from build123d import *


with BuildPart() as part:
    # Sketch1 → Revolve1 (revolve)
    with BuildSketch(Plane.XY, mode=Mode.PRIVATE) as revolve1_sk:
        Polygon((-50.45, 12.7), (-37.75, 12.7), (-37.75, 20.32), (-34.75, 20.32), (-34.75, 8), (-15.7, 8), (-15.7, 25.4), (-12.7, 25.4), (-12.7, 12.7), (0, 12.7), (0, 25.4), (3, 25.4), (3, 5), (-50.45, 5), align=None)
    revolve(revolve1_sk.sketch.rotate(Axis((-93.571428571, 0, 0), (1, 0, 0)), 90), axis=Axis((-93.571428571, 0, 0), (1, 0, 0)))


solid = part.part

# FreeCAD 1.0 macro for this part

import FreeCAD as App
import Part
import Sketcher

V = App.Vector
Q = App.Units.Quantity


def add_polygon(sketch, points):
    """Adds a closed chain of lines whose ends are joined by coincident constraints."""
    first, n = sketch.GeometryCount, len(points)
    for a, b in zip(points, points[1:] + points[:1]):
        sketch.addGeometry(Part.LineSegment(App.Vector(*a, 0), App.Vector(*b, 0)), False)
    for i in range(n):
        sketch.addConstraint(Sketcher.Constraint("Coincident", first + i, 2, first + (i + 1) % n, 1))

doc = App.newDocument("Part")
body = doc.addObject("PartDesign::Body", "Body")

# Sketch on XY plane
sketch1 = doc.addObject("Sketcher::SketchObject", "Sketch")
body.addObject(sketch1)
sketch1.AttachmentSupport = (doc.XY_Plane, [""])
sketch1.MapMode = "FlatFace"
add_polygon(sketch1, [(-37.75, 12.7), (-50.45, 12.7), (-50.45, 5), (3, 5), (3, 25.4), (0, 25.4), (0, 12.7), (-12.7, 12.7), (-12.7, 25.4), (-15.7, 25.4), (-15.7, 8), (-34.75, 8), (-34.75, 20.32), (-37.75, 20.32)])  # lines 0-13
sketch1.addConstraint(Sketcher.Constraint("Horizontal", 0))
sketch1.addConstraint(Sketcher.Constraint("Vertical", 1))
sketch1.addConstraint(Sketcher.Constraint("Horizontal", 2))
sketch1.addConstraint(Sketcher.Constraint("Vertical", 3))
sketch1.addConstraint(Sketcher.Constraint("Horizontal", 4))
sketch1.addConstraint(Sketcher.Constraint("Vertical", 5))
sketch1.addConstraint(Sketcher.Constraint("Horizontal", 6))
sketch1.addConstraint(Sketcher.Constraint("Vertical", 7))
sketch1.addConstraint(Sketcher.Constraint("Horizontal", 8))
sketch1.addConstraint(Sketcher.Constraint("Vertical", 9))
sketch1.addConstraint(Sketcher.Constraint("Horizontal", 10))
sketch1.addConstraint(Sketcher.Constraint("Vertical", 11))
sketch1.addConstraint(Sketcher.Constraint("Horizontal", 12))
sketch1.addConstraint(Sketcher.Constraint("Vertical", 13))
sketch1.addConstraint(Sketcher.Constraint("PointOnObject", 4, 2, -2))
sketch1.addConstraint(Sketcher.Constraint("Horizontal", 0, 2, 5, 2))
sketch1.addConstraint(Sketcher.Constraint("Horizontal", 4, 2, 7, 2))
sketch1.addConstraint(Sketcher.Constraint("Equal", 0, 6))
sketch1.addConstraint(Sketcher.Constraint("Equal", 4, 8))
sketch1.addConstraint(Sketcher.Constraint("Equal", 8, 12))
sketch1.addConstraint(Sketcher.Constraint("Equal", 6, 5))
sketch1.addConstraint(Sketcher.Constraint("DistanceX", 4, 2, 4, 1, Q("3 mm")))
sketch1.addConstraint(Sketcher.Constraint("DistanceX", 0, 2, 0, 1, Q("12.7 mm")))
sketch1.addConstraint(Sketcher.Constraint("DistanceY", 1, 2, 1, 1, Q("7.7 mm")))
sketch1.addConstraint(Sketcher.Constraint("DistanceY", 9, 2, 9, 1, Q("17.4 mm")))
sketch1.addConstraint(Sketcher.Constraint("DistanceY", -1, 1, 1, 2, Q("5 mm")))
sketch1.addConstraint(Sketcher.Constraint("DistanceX", 2, 1, 2, 2, Q("53.45 mm")))
sketch1.addConstraint(Sketcher.Constraint("DistanceY", 11, 1, 11, 2, Q("12.32 mm")))
revolution = doc.addObject("PartDesign::Revolution", "Revolution")
body.addObject(revolution)
revolution.Profile = sketch1
revolution.ReferenceAxis = (sketch1, ["H_Axis"])
revolution.Angle = 360

doc.recompute()
